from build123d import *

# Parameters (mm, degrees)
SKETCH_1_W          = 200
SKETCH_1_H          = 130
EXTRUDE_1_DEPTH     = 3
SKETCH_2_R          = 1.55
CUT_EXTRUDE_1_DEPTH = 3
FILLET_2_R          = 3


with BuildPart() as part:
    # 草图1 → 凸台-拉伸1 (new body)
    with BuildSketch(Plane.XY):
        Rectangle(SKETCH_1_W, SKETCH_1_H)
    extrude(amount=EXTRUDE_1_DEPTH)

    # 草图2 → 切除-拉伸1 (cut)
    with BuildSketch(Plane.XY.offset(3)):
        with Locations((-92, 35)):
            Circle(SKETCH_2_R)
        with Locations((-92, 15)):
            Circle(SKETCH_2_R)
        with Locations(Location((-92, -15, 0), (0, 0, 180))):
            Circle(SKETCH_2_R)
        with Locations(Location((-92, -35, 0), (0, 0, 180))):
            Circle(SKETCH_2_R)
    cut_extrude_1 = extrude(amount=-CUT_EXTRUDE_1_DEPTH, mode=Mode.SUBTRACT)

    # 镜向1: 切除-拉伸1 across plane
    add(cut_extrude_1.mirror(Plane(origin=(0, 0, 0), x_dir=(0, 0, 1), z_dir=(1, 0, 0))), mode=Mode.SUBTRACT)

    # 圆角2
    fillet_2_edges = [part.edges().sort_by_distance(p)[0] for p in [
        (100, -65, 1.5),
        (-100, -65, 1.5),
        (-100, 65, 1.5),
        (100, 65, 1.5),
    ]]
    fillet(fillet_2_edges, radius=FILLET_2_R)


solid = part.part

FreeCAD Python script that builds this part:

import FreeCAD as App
import Part
import Sketcher
Q = App.Units.Quantity


def edges_at(feature, points):
    """Names of the edges that pass closest to the given points."""
    edges = feature.Shape.Edges
    near = lambda p: min(range(len(edges)), key=lambda i: edges[i].distToShape(Part.Vertex(*p))[0])
    return sorted({f"Edge{near(p) + 1}" for p in points})


def add_polygon(sketch, points):
    """Adds a closed chain of lines whose ends are joined by coincident constraints."""
    first, n = sketch.GeometryCount, len(points)
    for a, b in zip(points, points[1:] + points[:1]):
        sketch.addGeometry(Part.LineSegment(App.Vector(*a, 0), App.Vector(*b, 0)), False)
    for i in range(n):
        sketch.addConstraint(Sketcher.Constraint("Coincident", first + i, 2, first + (i + 1) % n, 1))

doc = App.newDocument("Part")
params = doc.addObject("Spreadsheet::Sheet", "Params")
for row, (alias, value) in enumerate([
    ("sketch1_width", "200 mm"),
    ("sketch1_height", "130 mm"),
    ("pad1_length", "3 mm"),
    ("sketch2_diameter", "3.1 mm"),
    ("pocket1_length", "3 mm"),
    ("fillet_radius", "3 mm"),
], start=1):
    params.set(f"A{row}", alias)
    params.set(f"B{row}", "=" + value)
    params.setAlias(f"B{row}", alias)

body = doc.addObject("PartDesign::Body", "Body")

# Sketch on XY plane
sketch1 = doc.addObject("Sketcher::SketchObject", "Sketch")
body.addObject(sketch1)
sketch1.AttachmentSupport = (doc.XY_Plane, [""])
sketch1.MapMode = "FlatFace"
add_polygon(sketch1, [(-100, 65), (-100, -65), (100, -65), (100, 65)])  # lines 0-3
sketch1.addConstraint(Sketcher.Constraint("Vertical", 0))
sketch1.addConstraint(Sketcher.Constraint("Horizontal", 1))
sketch1.addConstraint(Sketcher.Constraint("Vertical", 2))
sketch1.addConstraint(Sketcher.Constraint("Horizontal", 3))
sketch1.addConstraint(Sketcher.Constraint("Symmetric", 0, 2, 2, 2, -1, 1))
sketch1.addConstraint(Sketcher.Constraint("DistanceX", 1, 1, 1, 2, Q("200 mm")))
sketch1.addConstraint(Sketcher.Constraint("DistanceY", 0, 2, 0, 1, Q("130 mm")))
sketch1.setExpression("Constraints[9]", "Params.sketch1_width")
sketch1.setExpression("Constraints[10]", "Params.sketch1_height")
pad1 = doc.addObject("PartDesign::Pad", "Pad")
body.addObject(pad1)
pad1.Profile = sketch1
pad1.setExpression("Length", "Params.pad1_length")

# Sketch on XY plane
sketch2 = doc.addObject("Sketcher::SketchObject", "Sketch001")
body.addObject(sketch2)
sketch2.AttachmentSupport = (doc.XY_Plane, [""])
sketch2.MapMode = "FlatFace"
sketch2.AttachmentOffset = App.Placement(App.Vector(0, 0, 3), App.Rotation())
sketch2.addGeometry(Part.Circle(App.Vector(-92, 35, 0), App.Vector(0, 0, 1), 1.6), False)
sketch2.addGeometry(Part.Circle(App.Vector(-92, 15, 0), App.Vector(0, 0, 1), 1.6), False)
sketch2.addGeometry(Part.Circle(App.Vector(-92, -15, 0), App.Vector(0, 0, 1), 1.6), False)
sketch2.addGeometry(Part.Circle(App.Vector(-92, -35, 0), App.Vector(0, 0, 1), 1.6), False)
sketch2.addConstraint(Sketcher.Constraint("Equal", 0, 1))
sketch2.addConstraint(Sketcher.Constraint("Equal", 1, 2))
sketch2.addConstraint(Sketcher.Constraint("Equal", 2, 3))
sketch2.addConstraint(Sketcher.Constraint("Symmetric", 1, 3, 2, 3, -1))
sketch2.addConstraint(Sketcher.Constraint("Symmetric", 0, 3, 3, 3, -1))
sketch2.addConstraint(Sketcher.Constraint("Vertical", 0, 3, 1, 3))
sketch2.addConstraint(Sketcher.Constraint("Diameter", 0, Q("3.1 mm")))
sketch2.addConstraint(Sketcher.Constraint("DistanceX", 0, 3, -1, 1, Q("92 mm")))
sketch2.addConstraint(Sketcher.Constraint("DistanceY", -1, 1, 0, 3, Q("35 mm")))
sketch2.addConstraint(Sketcher.Constraint("DistanceY", -1, 1, 1, 3, Q("15 mm")))
sketch2.setExpression("Constraints[6]", "Params.sketch2_diameter")
pocket1 = doc.addObject("PartDesign::Pocket", "Pocket")
body.addObject(pocket1)
pocket1.Profile = sketch2
pocket1.setExpression("Length", "Params.pocket1_length")
doc.recompute()

mirrored = doc.addObject("PartDesign::Mirrored", "Mirrored")
body.addObject(mirrored)
mirrored.Originals = [pocket1]
mirrored.MirrorPlane = (doc.YZ_Plane, [""])
body.Tip = mirrored
doc.recompute()

fillet = doc.addObject("PartDesign::Fillet", "Fillet")
body.addObject(fillet)
fillet.Base = (mirrored, edges_at(mirrored, [
    (100, -65, 1.5),
    (-100, -65, 1.5),
    (-100, 65, 1.5),
    (100, 65, 1.5),
]))
fillet.setExpression("Radius", "Params.fillet_radius")

doc.recompute()
